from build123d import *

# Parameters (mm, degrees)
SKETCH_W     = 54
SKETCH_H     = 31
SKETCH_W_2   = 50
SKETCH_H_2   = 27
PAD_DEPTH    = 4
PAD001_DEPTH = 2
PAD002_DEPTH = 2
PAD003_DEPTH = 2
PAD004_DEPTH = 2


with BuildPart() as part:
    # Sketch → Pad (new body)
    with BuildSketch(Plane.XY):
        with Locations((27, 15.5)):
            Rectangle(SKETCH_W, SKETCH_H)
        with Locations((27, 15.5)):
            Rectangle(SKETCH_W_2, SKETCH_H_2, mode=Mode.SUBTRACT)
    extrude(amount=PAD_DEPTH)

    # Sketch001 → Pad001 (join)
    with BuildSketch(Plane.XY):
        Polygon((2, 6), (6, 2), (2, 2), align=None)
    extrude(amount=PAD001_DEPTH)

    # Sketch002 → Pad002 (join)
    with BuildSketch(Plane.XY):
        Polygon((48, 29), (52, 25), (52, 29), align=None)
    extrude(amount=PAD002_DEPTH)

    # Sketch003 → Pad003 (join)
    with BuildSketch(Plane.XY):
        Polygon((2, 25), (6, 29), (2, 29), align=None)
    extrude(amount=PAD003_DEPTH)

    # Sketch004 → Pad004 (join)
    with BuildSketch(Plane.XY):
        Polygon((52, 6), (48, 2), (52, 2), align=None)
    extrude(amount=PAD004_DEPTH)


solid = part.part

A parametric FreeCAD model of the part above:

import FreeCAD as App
import Part
import Sketcher


def add_polygon(sketch, points):
    """Adds a closed chain of lines whose ends are joined by coincident constraints."""
    first, n = sketch.GeometryCount, len(points)
    for a, b in zip(points, points[1:] + points[:1]):
        sketch.addGeometry(Part.LineSegment(App.Vector(*a, 0), App.Vector(*b, 0)), False)
    for i in range(n):
        sketch.addConstraint(Sketcher.Constraint("Coincident", first + i, 2, first + (i + 1) % n, 1))

doc = App.newDocument("Part")
body = doc.addObject("PartDesign::Body", "Body")

# Sketch on XY plane
sketch1 = body.newObject("Sketcher::SketchObject", "Sketch")
sketch1.AttachmentSupport = (doc.getObject("XY_Plane"), [""])
sketch1.MapMode = "FlatFace"
add_polygon(sketch1, [(0, 31), (0, 0), (54, 0), (54, 31)])  # lines 0-3
add_polygon(sketch1, [(52, 2), (2, 2), (2, 29), (52, 29)])  # lines 4-7
sketch1.addConstraint([
    Sketcher.Constraint("Vertical", 0),
    Sketcher.Constraint("Horizontal", 1),
    Sketcher.Constraint("Vertical", 2),
    Sketcher.Constraint("Horizontal", 3),
    Sketcher.Constraint("Horizontal", 4),
    Sketcher.Constraint("Vertical", 5),
    Sketcher.Constraint("Horizontal", 6),
    Sketcher.Constraint("Vertical", 7),
    Sketcher.Constraint("Coincident", 0, 2, -1, 1),
    Sketcher.Constraint("DistanceX", 1, 1, 1, 2, 54.0),
    Sketcher.Constraint("DistanceX", 4, 2, 4, 1, 50.0),
    Sketcher.Constraint("DistanceY", 0, 2, 0, 1, 31.0),
    Sketcher.Constraint("DistanceY", 5, 1, 5, 2, 27.0),
    Sketcher.Constraint("DistanceX", -1, 1, 4, 2, 2.0),
    Sketcher.Constraint("DistanceY", -1, 1, 4, 2, 2.0),
])
pad1 = body.newObject("PartDesign::Pad", "Pad")
pad1.Profile = sketch1
pad1.Length = 4

# Sketch on XY plane
sketch2 = body.newObject("Sketcher::SketchObject", "Sketch001")
sketch2.AttachmentSupport = (doc.getObject("XY_Plane"), [""])
sketch2.MapMode = "FlatFace"
add_polygon(sketch2, [(6, 2), (2, 6), (2, 2)])  # lines 0-2
sketch2.addConstraint([
    Sketcher.Constraint("Vertical", 1),
    Sketcher.Constraint("Horizontal", 2),
    Sketcher.Constraint("Equal", 2, 1),
    Sketcher.Constraint("DistanceX", 2, 1, 2, 2, 4.0),
    Sketcher.Constraint("DistanceX", -1, 1, 0, 2, 2.0),
    Sketcher.Constraint("DistanceY", -1, 1, 0, 2, 6.0),
])
pad2 = body.newObject("PartDesign::Pad", "Pad001")
pad2.Profile = sketch2
pad2.Length = 2

# Sketch on XY plane
sketch3 = body.newObject("Sketcher::SketchObject", "Sketch002")
sketch3.AttachmentSupport = (doc.getObject("XY_Plane"), [""])
sketch3.MapMode = "FlatFace"
add_polygon(sketch3, [(48, 29), (52, 25), (52, 29)])  # lines 0-2
sketch3.addConstraint([
    Sketcher.Constraint("Vertical", 1),
    Sketcher.Constraint("Horizontal", 2),
    Sketcher.Constraint("Equal", 2, 1),
    Sketcher.Constraint("DistanceX", 2, 2, 2, 1, 4.0),
    Sketcher.Constraint("DistanceX", -1, 1, 0, 2, 52.0),
    Sketcher.Constraint("DistanceY", -1, 1, 0, 2, 25.0),
])
pad3 = body.newObject("PartDesign::Pad", "Pad002")
pad3.Profile = sketch3
pad3.Length = 2

# Sketch on XY plane
sketch4 = body.newObject("Sketcher::SketchObject", "Sketch003")
sketch4.AttachmentSupport = (doc.getObject("XY_Plane"), [""])
sketch4.MapMode = "FlatFace"
add_polygon(sketch4, [(2, 25), (6, 29), (2, 29)])  # lines 0-2
sketch4.addConstraint([
    Sketcher.Constraint("Horizontal", 1),
    Sketcher.Constraint("Vertical", 2),
    Sketcher.Constraint("Equal", 1, 2),
    Sketcher.Constraint("DistanceX", 1, 2, 1, 1, 4.0),
    Sketcher.Constraint("DistanceX", -1, 1, 0, 2, 6.0),
    Sketcher.Constraint("DistanceY", -1, 1, 0, 2, 29.0),
])
pad4 = body.newObject("PartDesign::Pad", "Pad003")
pad4.Profile = sketch4
pad4.Length = 2

# Sketch on XY plane
sketch5 = body.newObject("Sketcher::SketchObject", "Sketch004")
sketch5.AttachmentSupport = (doc.getObject("XY_Plane"), [""])
sketch5.MapMode = "FlatFace"
add_polygon(sketch5, [(52, 6), (48, 2), (52, 2)])  # lines 0-2
sketch5.addConstraint([
    Sketcher.Constraint("Horizontal", 1),
    Sketcher.Constraint("Vertical", 2),
    Sketcher.Constraint("Equal", 1, 2),
    Sketcher.Constraint("DistanceX", 1, 1, 1, 2, 4.0),
    Sketcher.Constraint("DistanceX", -1, 1, 0, 2, 48.0),
    Sketcher.Constraint("DistanceY", -1, 1, 0, 2, 2.0),
])
pad5 = body.newObject("PartDesign::Pad", "Pad004")
pad5.Profile = sketch5
pad5.Length = 2

doc.recompute()
